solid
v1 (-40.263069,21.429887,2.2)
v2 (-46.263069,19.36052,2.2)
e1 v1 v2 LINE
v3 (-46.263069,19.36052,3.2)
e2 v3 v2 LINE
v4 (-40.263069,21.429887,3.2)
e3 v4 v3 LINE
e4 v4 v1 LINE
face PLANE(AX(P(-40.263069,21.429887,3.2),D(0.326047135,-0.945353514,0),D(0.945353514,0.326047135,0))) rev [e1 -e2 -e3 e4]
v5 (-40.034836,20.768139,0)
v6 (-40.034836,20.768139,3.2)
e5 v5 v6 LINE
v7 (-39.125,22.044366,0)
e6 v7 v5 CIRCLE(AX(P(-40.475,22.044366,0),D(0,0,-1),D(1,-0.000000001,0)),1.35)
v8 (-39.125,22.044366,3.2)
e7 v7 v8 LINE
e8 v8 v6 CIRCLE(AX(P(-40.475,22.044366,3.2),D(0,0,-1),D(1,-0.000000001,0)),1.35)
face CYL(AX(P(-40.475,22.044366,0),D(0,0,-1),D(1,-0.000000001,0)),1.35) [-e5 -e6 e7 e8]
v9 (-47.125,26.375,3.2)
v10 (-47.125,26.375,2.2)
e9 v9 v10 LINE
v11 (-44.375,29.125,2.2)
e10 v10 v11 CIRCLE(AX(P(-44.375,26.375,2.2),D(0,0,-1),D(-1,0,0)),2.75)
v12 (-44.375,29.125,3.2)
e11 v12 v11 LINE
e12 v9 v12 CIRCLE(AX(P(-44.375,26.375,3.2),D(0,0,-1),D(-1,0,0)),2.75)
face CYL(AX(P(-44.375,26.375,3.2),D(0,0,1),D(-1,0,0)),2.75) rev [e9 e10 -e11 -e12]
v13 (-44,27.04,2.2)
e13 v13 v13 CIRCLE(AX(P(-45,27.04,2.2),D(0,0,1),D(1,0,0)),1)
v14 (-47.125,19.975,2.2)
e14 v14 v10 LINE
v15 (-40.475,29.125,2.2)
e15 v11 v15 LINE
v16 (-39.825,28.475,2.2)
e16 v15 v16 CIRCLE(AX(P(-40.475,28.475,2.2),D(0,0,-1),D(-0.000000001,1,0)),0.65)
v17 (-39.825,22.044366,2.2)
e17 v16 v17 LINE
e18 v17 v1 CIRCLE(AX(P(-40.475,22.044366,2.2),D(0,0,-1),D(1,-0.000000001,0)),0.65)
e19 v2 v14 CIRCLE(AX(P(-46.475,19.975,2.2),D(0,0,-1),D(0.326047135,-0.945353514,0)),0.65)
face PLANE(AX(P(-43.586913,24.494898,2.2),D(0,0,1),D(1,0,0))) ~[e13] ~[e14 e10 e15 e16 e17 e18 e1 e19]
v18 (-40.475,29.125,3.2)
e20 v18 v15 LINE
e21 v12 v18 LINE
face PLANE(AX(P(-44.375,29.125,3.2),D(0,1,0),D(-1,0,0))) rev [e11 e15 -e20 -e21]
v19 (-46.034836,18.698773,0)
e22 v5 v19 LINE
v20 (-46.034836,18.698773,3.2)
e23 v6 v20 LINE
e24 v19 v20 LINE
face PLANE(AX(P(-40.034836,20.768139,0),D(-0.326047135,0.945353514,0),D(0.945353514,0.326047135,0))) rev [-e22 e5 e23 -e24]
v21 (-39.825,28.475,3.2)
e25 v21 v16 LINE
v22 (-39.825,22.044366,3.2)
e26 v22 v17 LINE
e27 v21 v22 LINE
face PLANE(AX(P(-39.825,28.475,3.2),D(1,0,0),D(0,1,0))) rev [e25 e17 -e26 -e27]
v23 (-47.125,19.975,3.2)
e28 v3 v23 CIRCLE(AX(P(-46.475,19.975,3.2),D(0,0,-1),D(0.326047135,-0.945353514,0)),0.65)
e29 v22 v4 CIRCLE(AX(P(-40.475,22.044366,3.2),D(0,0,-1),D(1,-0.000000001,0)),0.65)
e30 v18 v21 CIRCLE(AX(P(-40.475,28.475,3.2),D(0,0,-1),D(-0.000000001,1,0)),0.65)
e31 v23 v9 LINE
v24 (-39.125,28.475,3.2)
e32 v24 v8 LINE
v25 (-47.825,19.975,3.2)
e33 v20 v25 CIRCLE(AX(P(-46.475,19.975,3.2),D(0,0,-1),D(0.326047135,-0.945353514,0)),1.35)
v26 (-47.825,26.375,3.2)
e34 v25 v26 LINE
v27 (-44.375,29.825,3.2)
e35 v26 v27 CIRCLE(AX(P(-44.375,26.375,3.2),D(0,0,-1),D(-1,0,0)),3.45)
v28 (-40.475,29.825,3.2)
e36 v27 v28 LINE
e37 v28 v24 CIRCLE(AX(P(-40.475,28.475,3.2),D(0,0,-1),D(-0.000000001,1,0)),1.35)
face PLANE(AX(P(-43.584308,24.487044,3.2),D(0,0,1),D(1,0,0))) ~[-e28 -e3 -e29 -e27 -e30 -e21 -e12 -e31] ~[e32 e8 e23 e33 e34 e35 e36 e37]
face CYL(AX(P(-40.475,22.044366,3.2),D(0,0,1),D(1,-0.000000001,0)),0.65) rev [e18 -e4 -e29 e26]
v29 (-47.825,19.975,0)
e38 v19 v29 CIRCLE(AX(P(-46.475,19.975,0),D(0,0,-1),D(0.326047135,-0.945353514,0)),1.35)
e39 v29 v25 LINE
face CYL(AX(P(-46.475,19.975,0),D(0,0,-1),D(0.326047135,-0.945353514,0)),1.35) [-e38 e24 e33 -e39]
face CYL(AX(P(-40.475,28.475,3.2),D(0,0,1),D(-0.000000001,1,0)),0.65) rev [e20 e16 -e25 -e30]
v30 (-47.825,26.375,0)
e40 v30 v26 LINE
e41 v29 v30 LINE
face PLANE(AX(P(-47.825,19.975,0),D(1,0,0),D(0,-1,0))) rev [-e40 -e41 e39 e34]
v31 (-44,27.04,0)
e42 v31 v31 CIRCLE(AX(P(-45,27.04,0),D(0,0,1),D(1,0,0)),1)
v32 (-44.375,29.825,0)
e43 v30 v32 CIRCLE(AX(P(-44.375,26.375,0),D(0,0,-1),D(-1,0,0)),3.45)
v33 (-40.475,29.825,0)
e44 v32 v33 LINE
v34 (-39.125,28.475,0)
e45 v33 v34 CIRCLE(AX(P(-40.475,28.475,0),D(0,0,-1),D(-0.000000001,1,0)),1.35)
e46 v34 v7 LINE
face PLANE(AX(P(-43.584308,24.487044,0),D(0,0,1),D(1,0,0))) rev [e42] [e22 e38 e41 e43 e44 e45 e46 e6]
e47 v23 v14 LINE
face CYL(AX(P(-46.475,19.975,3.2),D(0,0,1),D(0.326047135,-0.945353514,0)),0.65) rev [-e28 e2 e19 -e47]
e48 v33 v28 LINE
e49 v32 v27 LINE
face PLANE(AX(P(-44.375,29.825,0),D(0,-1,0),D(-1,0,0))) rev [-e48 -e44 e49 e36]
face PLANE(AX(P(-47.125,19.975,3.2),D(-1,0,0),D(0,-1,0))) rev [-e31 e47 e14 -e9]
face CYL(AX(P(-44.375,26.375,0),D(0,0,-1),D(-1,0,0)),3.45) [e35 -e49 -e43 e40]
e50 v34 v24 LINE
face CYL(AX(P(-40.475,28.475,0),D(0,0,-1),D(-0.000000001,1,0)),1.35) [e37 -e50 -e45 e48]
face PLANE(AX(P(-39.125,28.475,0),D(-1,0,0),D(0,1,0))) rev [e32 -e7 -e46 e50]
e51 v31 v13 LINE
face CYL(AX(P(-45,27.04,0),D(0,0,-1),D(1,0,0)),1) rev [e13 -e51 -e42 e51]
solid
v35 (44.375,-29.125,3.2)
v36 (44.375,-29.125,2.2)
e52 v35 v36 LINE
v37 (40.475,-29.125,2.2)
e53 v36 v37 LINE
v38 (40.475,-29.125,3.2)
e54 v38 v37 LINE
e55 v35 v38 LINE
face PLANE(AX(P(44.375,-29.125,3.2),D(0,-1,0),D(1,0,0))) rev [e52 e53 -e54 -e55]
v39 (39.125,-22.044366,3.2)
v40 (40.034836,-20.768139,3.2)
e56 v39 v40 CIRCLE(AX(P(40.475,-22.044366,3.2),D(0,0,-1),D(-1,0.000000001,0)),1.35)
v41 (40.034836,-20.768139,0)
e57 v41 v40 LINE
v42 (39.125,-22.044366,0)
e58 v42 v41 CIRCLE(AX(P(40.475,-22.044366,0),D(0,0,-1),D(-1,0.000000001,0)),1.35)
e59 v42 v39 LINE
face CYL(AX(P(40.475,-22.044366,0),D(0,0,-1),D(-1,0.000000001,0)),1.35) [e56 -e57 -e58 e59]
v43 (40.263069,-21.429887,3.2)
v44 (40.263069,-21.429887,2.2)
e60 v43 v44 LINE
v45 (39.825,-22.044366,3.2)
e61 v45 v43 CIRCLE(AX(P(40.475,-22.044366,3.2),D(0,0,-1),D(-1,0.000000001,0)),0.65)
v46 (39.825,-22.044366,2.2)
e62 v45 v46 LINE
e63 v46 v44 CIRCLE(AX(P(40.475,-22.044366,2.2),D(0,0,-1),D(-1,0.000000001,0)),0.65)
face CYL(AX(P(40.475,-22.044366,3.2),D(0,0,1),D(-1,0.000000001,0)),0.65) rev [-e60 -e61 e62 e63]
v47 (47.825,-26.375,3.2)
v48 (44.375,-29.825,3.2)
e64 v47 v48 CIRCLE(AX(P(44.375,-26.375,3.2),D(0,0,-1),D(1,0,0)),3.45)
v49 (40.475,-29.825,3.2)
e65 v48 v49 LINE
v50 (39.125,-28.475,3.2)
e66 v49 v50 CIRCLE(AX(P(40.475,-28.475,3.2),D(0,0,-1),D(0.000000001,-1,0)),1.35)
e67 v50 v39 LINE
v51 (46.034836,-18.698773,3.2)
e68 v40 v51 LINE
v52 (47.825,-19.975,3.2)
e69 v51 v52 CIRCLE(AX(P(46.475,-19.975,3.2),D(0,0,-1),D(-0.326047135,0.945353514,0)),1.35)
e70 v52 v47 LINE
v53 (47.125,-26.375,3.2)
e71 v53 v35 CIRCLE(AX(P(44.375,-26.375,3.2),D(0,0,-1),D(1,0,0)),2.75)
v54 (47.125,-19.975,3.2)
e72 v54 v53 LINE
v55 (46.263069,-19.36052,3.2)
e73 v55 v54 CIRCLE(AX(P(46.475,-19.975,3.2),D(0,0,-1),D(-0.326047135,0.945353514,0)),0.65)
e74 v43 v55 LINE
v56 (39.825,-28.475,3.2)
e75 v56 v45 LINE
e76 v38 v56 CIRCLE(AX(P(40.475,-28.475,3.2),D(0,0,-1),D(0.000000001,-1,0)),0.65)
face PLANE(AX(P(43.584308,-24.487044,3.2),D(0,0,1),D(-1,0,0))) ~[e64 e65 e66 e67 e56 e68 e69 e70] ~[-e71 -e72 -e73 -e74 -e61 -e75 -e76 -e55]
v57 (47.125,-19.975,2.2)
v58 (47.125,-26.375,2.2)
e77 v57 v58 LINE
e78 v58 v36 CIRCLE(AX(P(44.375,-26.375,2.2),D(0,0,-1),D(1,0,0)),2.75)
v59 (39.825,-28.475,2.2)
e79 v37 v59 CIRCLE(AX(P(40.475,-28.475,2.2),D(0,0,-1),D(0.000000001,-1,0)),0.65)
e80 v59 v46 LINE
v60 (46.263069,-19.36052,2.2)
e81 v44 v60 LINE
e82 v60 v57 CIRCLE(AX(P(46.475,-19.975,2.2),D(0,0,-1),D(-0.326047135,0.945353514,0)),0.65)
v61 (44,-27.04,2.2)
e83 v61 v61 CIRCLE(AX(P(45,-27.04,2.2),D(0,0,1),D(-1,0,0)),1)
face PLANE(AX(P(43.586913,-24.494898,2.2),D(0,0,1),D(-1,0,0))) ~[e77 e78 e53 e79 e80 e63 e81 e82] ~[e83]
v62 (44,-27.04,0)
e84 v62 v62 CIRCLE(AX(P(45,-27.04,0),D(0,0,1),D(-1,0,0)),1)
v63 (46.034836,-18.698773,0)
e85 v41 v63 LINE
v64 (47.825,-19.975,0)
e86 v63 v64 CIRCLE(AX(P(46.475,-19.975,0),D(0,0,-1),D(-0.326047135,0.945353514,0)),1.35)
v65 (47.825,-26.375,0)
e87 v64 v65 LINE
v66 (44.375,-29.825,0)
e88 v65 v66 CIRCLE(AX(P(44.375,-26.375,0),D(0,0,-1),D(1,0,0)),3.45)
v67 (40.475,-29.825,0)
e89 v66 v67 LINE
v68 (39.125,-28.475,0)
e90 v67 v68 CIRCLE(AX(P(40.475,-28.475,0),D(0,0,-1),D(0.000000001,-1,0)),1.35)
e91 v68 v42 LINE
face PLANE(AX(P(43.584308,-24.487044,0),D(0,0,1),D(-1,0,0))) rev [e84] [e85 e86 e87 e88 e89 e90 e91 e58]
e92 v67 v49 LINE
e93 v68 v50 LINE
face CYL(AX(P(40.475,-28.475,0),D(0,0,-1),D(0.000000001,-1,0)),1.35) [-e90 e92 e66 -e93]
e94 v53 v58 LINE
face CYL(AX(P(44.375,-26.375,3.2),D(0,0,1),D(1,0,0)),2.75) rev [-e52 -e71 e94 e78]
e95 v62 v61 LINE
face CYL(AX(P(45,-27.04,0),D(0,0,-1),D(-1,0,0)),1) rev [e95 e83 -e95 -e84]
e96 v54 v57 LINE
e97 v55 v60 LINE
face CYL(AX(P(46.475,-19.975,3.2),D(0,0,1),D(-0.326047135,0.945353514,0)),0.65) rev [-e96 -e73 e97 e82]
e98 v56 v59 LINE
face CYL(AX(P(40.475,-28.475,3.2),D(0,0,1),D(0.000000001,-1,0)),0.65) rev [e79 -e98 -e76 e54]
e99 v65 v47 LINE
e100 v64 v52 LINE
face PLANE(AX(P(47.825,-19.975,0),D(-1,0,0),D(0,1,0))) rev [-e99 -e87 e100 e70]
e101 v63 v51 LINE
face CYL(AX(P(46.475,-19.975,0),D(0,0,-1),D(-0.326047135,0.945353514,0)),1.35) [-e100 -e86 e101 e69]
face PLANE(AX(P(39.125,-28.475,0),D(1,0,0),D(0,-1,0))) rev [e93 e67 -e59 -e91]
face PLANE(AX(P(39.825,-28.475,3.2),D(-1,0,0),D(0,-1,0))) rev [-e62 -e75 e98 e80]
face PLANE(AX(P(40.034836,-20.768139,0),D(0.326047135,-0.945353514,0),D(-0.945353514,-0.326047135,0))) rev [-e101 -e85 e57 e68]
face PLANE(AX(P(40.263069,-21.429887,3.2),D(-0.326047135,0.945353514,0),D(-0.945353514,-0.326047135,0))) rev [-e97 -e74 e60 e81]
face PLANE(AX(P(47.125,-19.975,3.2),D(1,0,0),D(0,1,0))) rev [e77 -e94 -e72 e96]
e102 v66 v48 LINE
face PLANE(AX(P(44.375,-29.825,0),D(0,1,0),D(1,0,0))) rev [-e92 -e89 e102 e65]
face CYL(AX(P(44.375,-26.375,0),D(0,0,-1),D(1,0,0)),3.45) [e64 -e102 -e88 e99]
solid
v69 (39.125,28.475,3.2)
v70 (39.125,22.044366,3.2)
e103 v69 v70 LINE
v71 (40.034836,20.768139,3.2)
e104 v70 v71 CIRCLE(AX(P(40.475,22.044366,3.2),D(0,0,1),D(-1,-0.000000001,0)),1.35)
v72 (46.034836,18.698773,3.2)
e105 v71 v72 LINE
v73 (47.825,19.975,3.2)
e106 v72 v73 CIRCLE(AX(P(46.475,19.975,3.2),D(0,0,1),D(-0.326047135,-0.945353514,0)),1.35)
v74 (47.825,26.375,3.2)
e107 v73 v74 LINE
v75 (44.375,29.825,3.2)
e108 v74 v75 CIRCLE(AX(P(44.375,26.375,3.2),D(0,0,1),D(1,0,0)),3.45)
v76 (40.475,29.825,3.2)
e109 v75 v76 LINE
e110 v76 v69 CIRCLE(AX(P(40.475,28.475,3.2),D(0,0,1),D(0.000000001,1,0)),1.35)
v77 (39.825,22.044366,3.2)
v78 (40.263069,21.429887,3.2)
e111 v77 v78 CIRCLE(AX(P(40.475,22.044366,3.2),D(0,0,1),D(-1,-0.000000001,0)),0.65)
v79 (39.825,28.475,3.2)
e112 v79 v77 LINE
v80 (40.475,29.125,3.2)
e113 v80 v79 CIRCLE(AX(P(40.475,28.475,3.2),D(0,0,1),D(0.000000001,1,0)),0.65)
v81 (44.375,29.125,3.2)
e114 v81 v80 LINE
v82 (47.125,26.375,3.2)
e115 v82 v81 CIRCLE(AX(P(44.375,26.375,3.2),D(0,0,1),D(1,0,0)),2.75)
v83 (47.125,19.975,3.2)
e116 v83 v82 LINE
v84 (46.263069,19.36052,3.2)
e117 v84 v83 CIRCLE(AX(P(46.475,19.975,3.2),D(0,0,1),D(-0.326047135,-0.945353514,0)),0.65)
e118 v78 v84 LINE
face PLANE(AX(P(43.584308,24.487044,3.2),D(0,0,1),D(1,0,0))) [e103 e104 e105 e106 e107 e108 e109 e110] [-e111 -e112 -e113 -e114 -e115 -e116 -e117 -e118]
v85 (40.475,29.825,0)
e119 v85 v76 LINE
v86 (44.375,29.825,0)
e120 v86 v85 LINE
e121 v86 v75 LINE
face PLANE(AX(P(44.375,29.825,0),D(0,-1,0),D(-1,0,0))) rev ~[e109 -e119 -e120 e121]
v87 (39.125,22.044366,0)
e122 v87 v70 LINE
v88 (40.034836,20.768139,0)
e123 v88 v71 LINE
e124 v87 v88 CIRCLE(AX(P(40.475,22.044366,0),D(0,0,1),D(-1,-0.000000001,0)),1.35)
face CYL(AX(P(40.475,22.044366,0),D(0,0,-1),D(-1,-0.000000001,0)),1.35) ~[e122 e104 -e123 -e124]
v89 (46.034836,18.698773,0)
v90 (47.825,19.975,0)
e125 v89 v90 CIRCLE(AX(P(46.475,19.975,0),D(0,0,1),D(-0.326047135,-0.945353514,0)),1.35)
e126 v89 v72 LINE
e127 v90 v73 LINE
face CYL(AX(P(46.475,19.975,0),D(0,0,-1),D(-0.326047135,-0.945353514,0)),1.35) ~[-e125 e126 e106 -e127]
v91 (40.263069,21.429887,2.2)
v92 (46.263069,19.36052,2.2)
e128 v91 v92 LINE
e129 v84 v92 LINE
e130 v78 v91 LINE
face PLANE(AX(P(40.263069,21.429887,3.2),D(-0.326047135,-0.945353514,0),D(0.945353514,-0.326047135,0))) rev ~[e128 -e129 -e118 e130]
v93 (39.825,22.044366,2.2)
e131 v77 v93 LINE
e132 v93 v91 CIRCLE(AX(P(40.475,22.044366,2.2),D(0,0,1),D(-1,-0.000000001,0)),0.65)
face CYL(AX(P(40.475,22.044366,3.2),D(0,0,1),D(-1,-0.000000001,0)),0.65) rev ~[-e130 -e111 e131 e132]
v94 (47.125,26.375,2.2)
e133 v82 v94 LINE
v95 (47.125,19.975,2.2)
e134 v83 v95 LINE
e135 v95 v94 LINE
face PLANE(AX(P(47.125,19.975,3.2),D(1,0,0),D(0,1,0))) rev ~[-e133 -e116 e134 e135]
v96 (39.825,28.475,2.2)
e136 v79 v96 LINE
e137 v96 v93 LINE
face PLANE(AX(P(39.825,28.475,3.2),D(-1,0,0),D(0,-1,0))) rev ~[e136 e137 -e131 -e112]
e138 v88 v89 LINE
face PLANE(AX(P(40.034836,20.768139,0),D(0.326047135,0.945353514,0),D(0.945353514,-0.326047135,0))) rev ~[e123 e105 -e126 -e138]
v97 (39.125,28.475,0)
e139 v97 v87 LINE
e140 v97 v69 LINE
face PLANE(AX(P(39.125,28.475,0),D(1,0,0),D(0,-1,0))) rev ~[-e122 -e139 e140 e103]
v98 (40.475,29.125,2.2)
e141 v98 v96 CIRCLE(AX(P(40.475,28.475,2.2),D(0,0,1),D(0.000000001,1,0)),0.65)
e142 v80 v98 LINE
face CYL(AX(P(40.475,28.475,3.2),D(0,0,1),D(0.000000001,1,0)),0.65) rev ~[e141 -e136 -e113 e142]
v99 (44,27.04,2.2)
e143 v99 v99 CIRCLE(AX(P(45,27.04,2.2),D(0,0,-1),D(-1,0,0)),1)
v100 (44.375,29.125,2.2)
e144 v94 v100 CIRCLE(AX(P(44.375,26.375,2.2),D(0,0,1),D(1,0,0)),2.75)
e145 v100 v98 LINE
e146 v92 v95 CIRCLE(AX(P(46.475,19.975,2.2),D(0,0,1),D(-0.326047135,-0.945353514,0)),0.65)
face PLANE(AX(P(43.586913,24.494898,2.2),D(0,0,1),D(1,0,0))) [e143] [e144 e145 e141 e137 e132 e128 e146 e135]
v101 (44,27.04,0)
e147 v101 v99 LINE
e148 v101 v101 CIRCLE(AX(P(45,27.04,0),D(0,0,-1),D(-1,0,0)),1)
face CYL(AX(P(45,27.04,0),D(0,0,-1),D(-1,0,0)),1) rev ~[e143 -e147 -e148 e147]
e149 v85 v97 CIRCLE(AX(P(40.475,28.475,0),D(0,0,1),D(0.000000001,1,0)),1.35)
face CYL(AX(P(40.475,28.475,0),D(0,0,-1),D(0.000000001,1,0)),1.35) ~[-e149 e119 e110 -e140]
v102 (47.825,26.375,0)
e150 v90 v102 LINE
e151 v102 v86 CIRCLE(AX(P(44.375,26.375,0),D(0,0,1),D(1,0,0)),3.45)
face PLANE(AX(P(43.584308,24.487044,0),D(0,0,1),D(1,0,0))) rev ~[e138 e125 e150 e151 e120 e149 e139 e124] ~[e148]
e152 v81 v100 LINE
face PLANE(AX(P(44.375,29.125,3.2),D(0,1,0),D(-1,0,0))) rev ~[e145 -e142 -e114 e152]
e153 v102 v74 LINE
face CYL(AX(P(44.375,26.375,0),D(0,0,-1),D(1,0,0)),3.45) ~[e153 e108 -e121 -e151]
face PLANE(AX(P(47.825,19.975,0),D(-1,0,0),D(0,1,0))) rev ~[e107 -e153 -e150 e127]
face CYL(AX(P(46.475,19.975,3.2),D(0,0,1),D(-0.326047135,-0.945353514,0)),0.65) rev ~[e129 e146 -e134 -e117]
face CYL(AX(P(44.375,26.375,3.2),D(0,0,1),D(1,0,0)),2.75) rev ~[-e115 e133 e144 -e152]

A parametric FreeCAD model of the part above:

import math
import FreeCAD as App
import Part
import Sketcher
Q = App.Units.Quantity

doc = App.newDocument("Part")
params = doc.addObject("Spreadsheet::Sheet", "Params")
for row, (alias, value) in enumerate([
    ("sketch1_radius", "3.45 mm"),
    ("sketch1_radius2", "1.35 mm"),
    ("sketch1_width", "3.9 mm"),
    ("sketch1_height", "6.4 mm"),
    ("pad1_length", "3.2 mm"),
    ("sketch2_radius", "0.65 mm"),
    ("sketch2_radius2", "2.75 mm"),
    ("sketch2_width", "3.9 mm"),
    ("sketch2_height", "6.4 mm"),
    ("pocket1_length", "1 mm"),
    ("sketch3_diameter", "2 mm"),
], start=1):
    params.set(f"A{row}", alias)
    params.set(f"B{row}", "=" + value)
    params.setAlias(f"B{row}", alias)

body = doc.addObject("PartDesign::Body", "Body")

sketch1 = body.newObject("Sketcher::SketchObject", "Sketch")
sketch1.AttachmentSupport = (doc.getObject("XY_Plane"), [""])
sketch1.MapMode = "FlatFace"
sketch1.addGeometry([
    Part.LineSegment(App.Vector(47.825, 19.975, 0), App.Vector(47.825, 26.375, 0)),
    Part.ArcOfCircle(Part.Circle(App.Vector(44.375, 26.375, 0), App.Vector(0, 0, 1), 3.45), math.radians(0), math.radians(90)),
    Part.LineSegment(App.Vector(44.375, 29.825, 0), App.Vector(40.475, 29.825, 0)),
    Part.ArcOfCircle(Part.Circle(App.Vector(40.475, 28.475, 0), App.Vector(0, 0, 1), 1.35), math.radians(90), math.radians(180)),
    Part.LineSegment(App.Vector(39.125, 28.475, 0), App.Vector(39.125, 22.044366, 0)),
    Part.ArcOfCircle(Part.Circle(App.Vector(40.475, 22.044366, 0), App.Vector(0, 0, 1), 1.35), math.radians(-180), math.radians(-109.029027)),
    Part.LineSegment(App.Vector(40.034836, 20.768139, 0), App.Vector(46.034836, 18.698773, 0)),
    Part.ArcOfCircle(Part.Circle(App.Vector(46.475, 19.975, 0), App.Vector(0, 0, 1), 1.35), math.radians(-109.029027), math.radians(0)),
], False)
sketch1.addConstraint([
    Sketcher.Constraint("Tangent", 0, 2, 1, 1),
    Sketcher.Constraint("Tangent", 1, 2, 2, 1),
    Sketcher.Constraint("Tangent", 2, 2, 3, 1),
    Sketcher.Constraint("Tangent", 3, 2, 4, 1),
    Sketcher.Constraint("Tangent", 4, 2, 5, 1),
    Sketcher.Constraint("Tangent", 5, 2, 6, 1),
    Sketcher.Constraint("Tangent", 6, 2, 7, 1),
    Sketcher.Constraint("Tangent", 7, 2, 0, 1),
    Sketcher.Constraint("Vertical", 0),
    Sketcher.Constraint("Horizontal", 2),
    Sketcher.Constraint("Vertical", 4),
    Sketcher.Constraint("Equal", 3, 5),
    Sketcher.Constraint("Equal", 5, 7),
    Sketcher.Constraint("Radius", 1, Q("3.45 mm")),
    Sketcher.Constraint("Radius", 3, Q("1.35 mm")),
    Sketcher.Constraint("DistanceX", 2, 2, 2, 1, Q("3.9 mm")),
    Sketcher.Constraint("DistanceY", 0, 1, 0, 2, Q("6.4 mm")),
    Sketcher.Constraint("DistanceX", -1, 1, 1, 3, Q("44.375 mm")),
    Sketcher.Constraint("DistanceY", -1, 1, 1, 3, Q("26.375 mm")),
    Sketcher.Constraint("DistanceY", 4, 2, 4, 1, Q("6.430634 mm")),
])
sketch1.setExpression("Constraints[13]", "Params.sketch1_radius")
sketch1.setExpression("Constraints[14]", "Params.sketch1_radius2")
sketch1.setExpression("Constraints[15]", "Params.sketch1_width")
sketch1.setExpression("Constraints[16]", "Params.sketch1_height")
pad1 = body.newObject("PartDesign::Pad", "Pad")
pad1.Profile = sketch1
pad1.setExpression("Length", "Params.pad1_length")

sketch2 = body.newObject("Sketcher::SketchObject", "Sketch001")
sketch2.AttachmentSupport = (doc.getObject("XY_Plane"), [""])
sketch2.MapMode = "FlatFace"
sketch2.AttachmentOffset = App.Placement(App.Vector(0, 0, 3.2), App.Rotation())
sketch2.addGeometry([
    Part.LineSegment(App.Vector(40.263069, 21.429887, 0), App.Vector(46.263069, 19.36052, 0)),
    Part.ArcOfCircle(Part.Circle(App.Vector(46.475, 19.975, 0), App.Vector(0, 0, 1), 0.65), math.radians(-109.029027), math.radians(0)),
    Part.LineSegment(App.Vector(47.125, 19.975, 0), App.Vector(47.125, 26.375, 0)),
    Part.ArcOfCircle(Part.Circle(App.Vector(44.375, 26.375, 0), App.Vector(0, 0, 1), 2.75), math.radians(0), math.radians(90)),
    Part.LineSegment(App.Vector(44.375, 29.125, 0), App.Vector(40.475, 29.125, 0)),
    Part.ArcOfCircle(Part.Circle(App.Vector(40.475, 28.475, 0), App.Vector(0, 0, 1), 0.65), math.radians(90), math.radians(180)),
    Part.LineSegment(App.Vector(39.825, 28.475, 0), App.Vector(39.825, 22.044366, 0)),
    Part.ArcOfCircle(Part.Circle(App.Vector(40.475, 22.044366, 0), App.Vector(0, 0, 1), 0.65), math.radians(180), math.radians(250.970972)),
], False)
sketch2.addConstraint([
    Sketcher.Constraint("Tangent", 0, 2, 1, 1),
    Sketcher.Constraint("Tangent", 1, 2, 2, 1),
    Sketcher.Constraint("Tangent", 2, 2, 3, 1),
    Sketcher.Constraint("Tangent", 3, 2, 4, 1),
    Sketcher.Constraint("Tangent", 4, 2, 5, 1),
    Sketcher.Constraint("Tangent", 5, 2, 6, 1),
    Sketcher.Constraint("Tangent", 6, 2, 7, 1),
    Sketcher.Constraint("Tangent", 7, 2, 0, 1),
    Sketcher.Constraint("Vertical", 2),
    Sketcher.Constraint("Horizontal", 4),
    Sketcher.Constraint("Vertical", 6),
    Sketcher.Constraint("Equal", 1, 5),
    Sketcher.Constraint("Equal", 5, 7),
    Sketcher.Constraint("Radius", 1, Q("0.65 mm")),
    Sketcher.Constraint("Radius", 3, Q("2.75 mm")),
    Sketcher.Constraint("DistanceX", 4, 2, 4, 1, Q("3.9 mm")),
    Sketcher.Constraint("DistanceY", 2, 1, 2, 2, Q("6.4 mm")),
    Sketcher.Constraint("DistanceX", -1, 1, 1, 3, Q("46.475 mm")),
    Sketcher.Constraint("DistanceY", -1, 1, 1, 3, Q("19.975 mm")),
    Sketcher.Constraint("DistanceY", 6, 2, 6, 1, Q("6.430634 mm")),
])
sketch2.setExpression("Constraints[13]", "Params.sketch2_radius")
sketch2.setExpression("Constraints[14]", "Params.sketch2_radius2")
sketch2.setExpression("Constraints[15]", "Params.sketch2_width")
sketch2.setExpression("Constraints[16]", "Params.sketch2_height")
pocket1 = body.newObject("PartDesign::Pocket", "Pocket")
pocket1.Profile = sketch2
pocket1.setExpression("Length", "Params.pocket1_length")

sketch3 = body.newObject("Sketcher::SketchObject", "Sketch002")
sketch3.AttachmentSupport = (doc.getObject("XY_Plane"), [""])
sketch3.MapMode = "FlatFace"
sketch3.addGeometry(Part.Circle(App.Vector(45, 27.04, 0), App.Vector(0, 0, 1), 1), False)
sketch3.addConstraint([
    Sketcher.Constraint("Diameter", 0, Q("2 mm")),
    Sketcher.Constraint("DistanceX", -1, 1, 0, 3, Q("45 mm")),
    Sketcher.Constraint("DistanceY", -1, 1, 0, 3, Q("27.04 mm")),
])
sketch3.setExpression("Constraints[0]", "Params.sketch3_diameter")
pocket2 = body.newObject("PartDesign::Pocket", "Pocket001")
pocket2.Profile = sketch3
pocket2.Type = "ThroughAll"
pocket2.Reversed = True
body2 = doc.addObject("PartDesign::Body", "Body001")
doc.recompute()

mirroring = doc.addObject("Part::Mirroring", "Mirroring")
mirroring.Source = body
mirroring.Base = App.Vector(0, 0, 0)
mirroring.Normal = App.Vector(0, 1, 0)
body2.BaseFeature = mirroring
doc.recompute()
body3 = doc.addObject("PartDesign::Body", "Body002")
doc.recompute()

mirroring2 = doc.addObject("Part::Mirroring", "Mirroring001")
mirroring2.Source = body
mirroring2.Base = App.Vector(0, 0, 0)
mirroring2.Normal = App.Vector(1, 0, 0)
body3.BaseFeature = mirroring2
doc.recompute()
mirroring.Visibility = False
mirroring2.Visibility = False

doc.recompute()
